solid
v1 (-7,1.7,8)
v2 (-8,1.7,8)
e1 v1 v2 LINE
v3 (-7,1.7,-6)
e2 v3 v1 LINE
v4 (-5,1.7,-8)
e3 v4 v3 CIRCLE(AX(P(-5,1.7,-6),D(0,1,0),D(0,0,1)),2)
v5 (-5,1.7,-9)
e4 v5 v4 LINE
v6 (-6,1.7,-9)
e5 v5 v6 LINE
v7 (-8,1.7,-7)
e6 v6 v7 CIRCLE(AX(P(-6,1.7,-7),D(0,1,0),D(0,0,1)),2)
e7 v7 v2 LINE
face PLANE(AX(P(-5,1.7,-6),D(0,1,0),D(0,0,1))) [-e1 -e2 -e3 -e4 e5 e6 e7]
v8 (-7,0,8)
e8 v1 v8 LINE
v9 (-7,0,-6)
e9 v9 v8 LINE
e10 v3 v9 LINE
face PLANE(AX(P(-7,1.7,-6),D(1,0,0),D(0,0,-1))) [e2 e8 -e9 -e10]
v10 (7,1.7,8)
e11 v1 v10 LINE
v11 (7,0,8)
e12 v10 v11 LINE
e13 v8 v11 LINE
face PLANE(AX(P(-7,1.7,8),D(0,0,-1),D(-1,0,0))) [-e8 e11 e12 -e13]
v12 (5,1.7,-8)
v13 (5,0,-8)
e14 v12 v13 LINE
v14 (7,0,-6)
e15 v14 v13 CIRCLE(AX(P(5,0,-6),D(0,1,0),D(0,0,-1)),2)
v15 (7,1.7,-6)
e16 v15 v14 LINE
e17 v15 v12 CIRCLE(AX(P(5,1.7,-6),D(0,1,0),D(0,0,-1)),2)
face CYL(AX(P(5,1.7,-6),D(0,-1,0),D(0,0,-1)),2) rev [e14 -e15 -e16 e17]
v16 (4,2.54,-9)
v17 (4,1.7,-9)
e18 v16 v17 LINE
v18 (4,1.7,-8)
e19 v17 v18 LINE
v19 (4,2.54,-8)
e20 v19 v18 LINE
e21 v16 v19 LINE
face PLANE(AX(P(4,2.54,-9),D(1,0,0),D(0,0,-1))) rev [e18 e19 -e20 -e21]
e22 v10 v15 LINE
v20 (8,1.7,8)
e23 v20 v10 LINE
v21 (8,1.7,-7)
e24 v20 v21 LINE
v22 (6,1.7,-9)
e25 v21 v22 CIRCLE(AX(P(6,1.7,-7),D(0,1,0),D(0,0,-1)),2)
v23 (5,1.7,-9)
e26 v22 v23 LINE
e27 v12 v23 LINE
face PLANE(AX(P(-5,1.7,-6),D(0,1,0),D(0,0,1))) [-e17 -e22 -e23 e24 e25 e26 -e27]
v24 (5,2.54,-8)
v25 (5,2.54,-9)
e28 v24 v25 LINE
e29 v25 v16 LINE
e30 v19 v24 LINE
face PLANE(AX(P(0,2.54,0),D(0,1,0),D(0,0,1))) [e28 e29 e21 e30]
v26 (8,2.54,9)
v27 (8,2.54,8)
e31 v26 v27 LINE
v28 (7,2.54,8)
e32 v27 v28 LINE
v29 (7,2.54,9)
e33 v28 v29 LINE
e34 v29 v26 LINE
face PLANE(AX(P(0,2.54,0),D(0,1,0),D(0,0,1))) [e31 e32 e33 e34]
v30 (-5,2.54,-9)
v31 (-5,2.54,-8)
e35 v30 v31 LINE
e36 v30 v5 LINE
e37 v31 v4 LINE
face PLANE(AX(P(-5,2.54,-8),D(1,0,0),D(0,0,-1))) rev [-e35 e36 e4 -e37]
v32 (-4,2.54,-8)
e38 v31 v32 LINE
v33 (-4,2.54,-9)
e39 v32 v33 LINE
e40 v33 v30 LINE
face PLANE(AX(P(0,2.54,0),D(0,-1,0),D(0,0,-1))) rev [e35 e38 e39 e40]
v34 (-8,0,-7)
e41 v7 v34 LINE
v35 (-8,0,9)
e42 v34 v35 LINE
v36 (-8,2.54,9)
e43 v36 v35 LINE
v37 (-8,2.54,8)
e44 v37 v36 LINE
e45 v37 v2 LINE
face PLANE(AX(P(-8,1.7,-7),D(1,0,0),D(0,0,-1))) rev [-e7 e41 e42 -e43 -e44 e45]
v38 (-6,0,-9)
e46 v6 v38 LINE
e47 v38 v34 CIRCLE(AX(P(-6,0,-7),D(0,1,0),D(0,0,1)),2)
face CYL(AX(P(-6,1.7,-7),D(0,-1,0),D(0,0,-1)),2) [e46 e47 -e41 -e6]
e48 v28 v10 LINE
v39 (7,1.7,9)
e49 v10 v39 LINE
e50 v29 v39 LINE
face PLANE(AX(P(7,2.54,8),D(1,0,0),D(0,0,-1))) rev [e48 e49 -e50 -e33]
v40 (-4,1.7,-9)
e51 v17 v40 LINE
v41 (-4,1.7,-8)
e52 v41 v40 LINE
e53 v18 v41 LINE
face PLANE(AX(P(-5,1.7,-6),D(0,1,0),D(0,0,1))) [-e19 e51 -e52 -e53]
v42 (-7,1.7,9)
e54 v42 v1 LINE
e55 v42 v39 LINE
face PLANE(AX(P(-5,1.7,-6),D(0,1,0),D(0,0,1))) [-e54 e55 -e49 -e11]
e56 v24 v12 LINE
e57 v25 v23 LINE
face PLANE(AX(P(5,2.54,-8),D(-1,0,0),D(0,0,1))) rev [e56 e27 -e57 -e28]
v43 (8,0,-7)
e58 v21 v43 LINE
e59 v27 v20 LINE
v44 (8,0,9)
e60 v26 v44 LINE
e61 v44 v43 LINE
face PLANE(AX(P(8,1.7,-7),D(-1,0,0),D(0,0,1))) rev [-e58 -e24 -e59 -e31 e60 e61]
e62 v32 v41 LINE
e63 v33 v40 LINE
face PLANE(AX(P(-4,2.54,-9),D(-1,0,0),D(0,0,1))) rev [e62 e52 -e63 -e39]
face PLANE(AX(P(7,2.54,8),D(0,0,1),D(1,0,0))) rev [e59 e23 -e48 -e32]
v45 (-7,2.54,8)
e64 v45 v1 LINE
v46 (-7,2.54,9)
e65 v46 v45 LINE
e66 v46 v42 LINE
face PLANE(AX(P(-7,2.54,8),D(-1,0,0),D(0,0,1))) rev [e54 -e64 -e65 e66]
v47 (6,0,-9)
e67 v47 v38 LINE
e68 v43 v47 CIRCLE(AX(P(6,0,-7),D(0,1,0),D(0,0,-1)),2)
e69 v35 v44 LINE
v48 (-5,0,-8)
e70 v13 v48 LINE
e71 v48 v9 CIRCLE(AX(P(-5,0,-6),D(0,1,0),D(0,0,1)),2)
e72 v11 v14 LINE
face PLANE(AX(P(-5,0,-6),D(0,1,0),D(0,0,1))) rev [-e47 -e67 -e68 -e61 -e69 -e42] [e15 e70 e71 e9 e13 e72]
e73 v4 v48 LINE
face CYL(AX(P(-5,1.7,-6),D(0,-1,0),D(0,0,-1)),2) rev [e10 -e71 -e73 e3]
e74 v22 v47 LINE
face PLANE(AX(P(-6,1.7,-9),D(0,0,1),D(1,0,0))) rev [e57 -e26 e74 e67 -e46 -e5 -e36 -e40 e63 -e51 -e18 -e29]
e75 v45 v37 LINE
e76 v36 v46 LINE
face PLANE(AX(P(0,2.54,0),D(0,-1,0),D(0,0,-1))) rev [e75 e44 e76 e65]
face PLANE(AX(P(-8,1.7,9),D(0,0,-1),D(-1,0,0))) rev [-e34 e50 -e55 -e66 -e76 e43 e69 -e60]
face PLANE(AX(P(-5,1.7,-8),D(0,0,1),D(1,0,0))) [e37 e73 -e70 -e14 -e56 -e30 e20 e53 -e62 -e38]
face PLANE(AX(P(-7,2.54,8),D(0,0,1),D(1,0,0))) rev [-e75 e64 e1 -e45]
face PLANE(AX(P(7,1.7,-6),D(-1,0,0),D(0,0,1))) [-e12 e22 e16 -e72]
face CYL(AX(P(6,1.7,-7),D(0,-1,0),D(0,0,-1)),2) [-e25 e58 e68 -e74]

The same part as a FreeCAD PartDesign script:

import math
import FreeCAD as App
import Part
import Sketcher
Q = App.Units.Quantity

doc = App.newDocument("Part")
params = doc.addObject("Spreadsheet::Sheet", "Params")
for row, (alias, value) in enumerate([
    ("sketch1_radius", "2 mm"),
    ("sketch1_width", "10 mm"),
    ("pad1_length", "1.7 mm"),
    ("sketch2_radius", "2 mm"),
    ("sketch2_width", "12 mm"),
    ("pad2_length", "1.7 mm"),
    ("sketch3_radius", "2 mm"),
    ("sketch3_width", "10 mm"),
    ("pocket1_length", "1.7 mm"),
    ("sketch4_width", "1 mm"),
    ("pad3_length", "0.84 mm"),
], start=1):
    params.set(f"A{row}", alias)
    params.set(f"B{row}", "=" + value)
    params.setAlias(f"B{row}", alias)

body = doc.addObject("PartDesign::Body", "Body")

# Sketch on XZ plane
sketch1 = body.newObject("Sketcher::SketchObject", "Sketch")
sketch1.AttachmentSupport = (doc.getObject("XZ_Plane"), [""])
sketch1.MapMode = "FlatFace"
sketch1.addGeometry([
    Part.LineSegment(App.Vector(5, -8, 0), App.Vector(-5, -8, 0)),  # 0
    Part.ArcOfCircle(Part.Circle(App.Vector(-5, -6, 0), App.Vector(0, 0, 1), 2), math.radians(-180), math.radians(-90)),  # 1
    Part.LineSegment(App.Vector(-7, -6, 0), App.Vector(-7, 8, 0)),  # 2
    Part.LineSegment(App.Vector(-7, 8, 0), App.Vector(7, 8, 0)),  # 3
    Part.LineSegment(App.Vector(7, 8, 0), App.Vector(7, -6, 0)),  # 4
    Part.ArcOfCircle(Part.Circle(App.Vector(5, -6, 0), App.Vector(0, 0, 1), 2), math.radians(-90), math.radians(0)),  # 5
], False)
sketch1.addConstraint([
    Sketcher.Constraint("Tangent", 0, 2, 1, 2),
    Sketcher.Constraint("Tangent", 1, 1, 2, 1),
    Sketcher.Constraint("Coincident", 2, 2, 3, 1),
    Sketcher.Constraint("Coincident", 3, 2, 4, 1),
    Sketcher.Constraint("Tangent", 4, 2, 5, 2),
    Sketcher.Constraint("Tangent", 5, 1, 0, 1),
    Sketcher.Constraint("Horizontal", 0),
    Sketcher.Constraint("Vertical", 2),
    Sketcher.Constraint("Horizontal", 3),
    Sketcher.Constraint("Vertical", 4),
    Sketcher.Constraint("Equal", 1, 5),
    Sketcher.Constraint("Equal", 3, 2),
    Sketcher.Constraint("Radius", 1, Q("2 mm")),
    Sketcher.Constraint("DistanceX", 0, 2, 0, 1, Q("10 mm")),
    Sketcher.Constraint("DistanceX", 1, 3, -1, 1, Q("5 mm")),
    Sketcher.Constraint("DistanceY", 1, 3, -1, 1, Q("6 mm")),
])
sketch1.setExpression("Constraints[12]", "Params.sketch1_radius")
sketch1.setExpression("Constraints[13]", "Params.sketch1_width")
pad1 = body.newObject("PartDesign::Pad", "Pad")
pad1.Profile = sketch1
pad1.setExpression("Length", "Params.pad1_length")
pad1.Reversed = True

# Sketch on XZ plane
sketch2 = body.newObject("Sketcher::SketchObject", "Sketch001")
sketch2.AttachmentSupport = (doc.getObject("XZ_Plane"), [""])
sketch2.MapMode = "FlatFace"
sketch2.addGeometry([
    Part.LineSegment(App.Vector(6, -9, 0), App.Vector(-6, -9, 0)),  # 0
    Part.ArcOfCircle(Part.Circle(App.Vector(-6, -7, 0), App.Vector(0, 0, 1), 2), math.radians(-180), math.radians(-90)),  # 1
    Part.LineSegment(App.Vector(-8, -7, 0), App.Vector(-8, 9, 0)),  # 2
    Part.LineSegment(App.Vector(-8, 9, 0), App.Vector(8, 9, 0)),  # 3
    Part.LineSegment(App.Vector(8, 9, 0), App.Vector(8, -7, 0)),  # 4
    Part.ArcOfCircle(Part.Circle(App.Vector(6, -7, 0), App.Vector(0, 0, 1), 2), math.radians(-90), math.radians(0)),  # 5
], False)
sketch2.addConstraint([
    Sketcher.Constraint("Tangent", 0, 2, 1, 2),
    Sketcher.Constraint("Tangent", 1, 1, 2, 1),
    Sketcher.Constraint("Coincident", 2, 2, 3, 1),
    Sketcher.Constraint("Coincident", 3, 2, 4, 1),
    Sketcher.Constraint("Tangent", 4, 2, 5, 2),
    Sketcher.Constraint("Tangent", 5, 1, 0, 1),
    Sketcher.Constraint("Horizontal", 0),
    Sketcher.Constraint("Vertical", 2),
    Sketcher.Constraint("Horizontal", 3),
    Sketcher.Constraint("Vertical", 4),
    Sketcher.Constraint("Equal", 1, 5),
    Sketcher.Constraint("Equal", 3, 2),
    Sketcher.Constraint("Radius", 1, Q("2 mm")),
    Sketcher.Constraint("DistanceX", 0, 2, 0, 1, Q("12 mm")),
    Sketcher.Constraint("DistanceX", 1, 3, -1, 1, Q("6 mm")),
    Sketcher.Constraint("DistanceY", 1, 3, -1, 1, Q("7 mm")),
])
sketch2.setExpression("Constraints[12]", "Params.sketch2_radius")
sketch2.setExpression("Constraints[13]", "Params.sketch2_width")
pad2 = body.newObject("PartDesign::Pad", "Pad001")
pad2.Profile = sketch2
pad2.setExpression("Length", "Params.pad2_length")
pad2.Reversed = True

# Sketch on XZ plane
sketch3 = body.newObject("Sketcher::SketchObject", "Sketch002")
sketch3.AttachmentSupport = (doc.getObject("XZ_Plane"), [""])
sketch3.MapMode = "FlatFace"
sketch3.addGeometry([
    Part.LineSegment(App.Vector(5, -8, 0), App.Vector(-5, -8, 0)),  # 0
    Part.ArcOfCircle(Part.Circle(App.Vector(-5, -6, 0), App.Vector(0, 0, 1), 2), math.radians(-180), math.radians(-90)),  # 1
    Part.LineSegment(App.Vector(-7, -6, 0), App.Vector(-7, 8, 0)),  # 2
    Part.LineSegment(App.Vector(-7, 8, 0), App.Vector(7, 8, 0)),  # 3
    Part.LineSegment(App.Vector(7, 8, 0), App.Vector(7, -6, 0)),  # 4
    Part.ArcOfCircle(Part.Circle(App.Vector(5, -6, 0), App.Vector(0, 0, 1), 2), math.radians(-90), math.radians(0)),  # 5
], False)
sketch3.addConstraint([
    Sketcher.Constraint("Tangent", 0, 2, 1, 2),
    Sketcher.Constraint("Tangent", 1, 1, 2, 1),
    Sketcher.Constraint("Coincident", 2, 2, 3, 1),
    Sketcher.Constraint("Coincident", 3, 2, 4, 1),
    Sketcher.Constraint("Tangent", 4, 2, 5, 2),
    Sketcher.Constraint("Tangent", 5, 1, 0, 1),
    Sketcher.Constraint("Horizontal", 0),
    Sketcher.Constraint("Vertical", 2),
    Sketcher.Constraint("Horizontal", 3),
    Sketcher.Constraint("Vertical", 4),
    Sketcher.Constraint("Equal", 1, 5),
    Sketcher.Constraint("Equal", 3, 2),
    Sketcher.Constraint("Radius", 1, Q("2 mm")),
    Sketcher.Constraint("DistanceX", 0, 2, 0, 1, Q("10 mm")),
    Sketcher.Constraint("DistanceX", 1, 3, -1, 1, Q("5 mm")),
    Sketcher.Constraint("DistanceY", 1, 3, -1, 1, Q("6 mm")),
])
sketch3.setExpression("Constraints[12]", "Params.sketch3_radius")
sketch3.setExpression("Constraints[13]", "Params.sketch3_width")
pocket1 = body.newObject("PartDesign::Pocket", "Pocket")
pocket1.Profile = sketch3
pocket1.setExpression("Length", "Params.pocket1_length")

# Sketch on XZ plane
sketch4 = body.newObject("Sketcher::SketchObject", "Sketch003")
sketch4.AttachmentSupport = (doc.getObject("XZ_Plane"), [""])
sketch4.MapMode = "FlatFace"
sketch4.AttachmentOffset = App.Placement(App.Vector(0, 0, -1.7), App.Rotation())
sketch4.addGeometry([
    Part.LineSegment(App.Vector(-5, -9, 0), App.Vector(-5, -8, 0)),  # 0
    Part.LineSegment(App.Vector(-5, -8, 0), App.Vector(-4, -8, 0)),  # 1
    Part.LineSegment(App.Vector(-4, -8, 0), App.Vector(-4, -9, 0)),  # 2
    Part.LineSegment(App.Vector(-4, -9, 0), App.Vector(-5, -9, 0)),  # 3
    Part.LineSegment(App.Vector(-8, 8, 0), App.Vector(-8, 9, 0)),  # 4
    Part.LineSegment(App.Vector(-8, 9, 0), App.Vector(-7, 9, 0)),  # 5
    Part.LineSegment(App.Vector(-7, 9, 0), App.Vector(-7, 8, 0)),  # 6
    Part.LineSegment(App.Vector(-7, 8, 0), App.Vector(-8, 8, 0)),  # 7
    Part.LineSegment(App.Vector(7, 8, 0), App.Vector(7, 9, 0)),  # 8
    Part.LineSegment(App.Vector(7, 9, 0), App.Vector(8, 9, 0)),  # 9
    Part.LineSegment(App.Vector(8, 9, 0), App.Vector(8, 8, 0)),  # 10
    Part.LineSegment(App.Vector(8, 8, 0), App.Vector(7, 8, 0)),  # 11
    Part.LineSegment(App.Vector(4, -9, 0), App.Vector(4, -8, 0)),  # 12
    Part.LineSegment(App.Vector(4, -8, 0), App.Vector(5, -8, 0)),  # 13
    Part.LineSegment(App.Vector(5, -8, 0), App.Vector(5, -9, 0)),  # 14
    Part.LineSegment(App.Vector(5, -9, 0), App.Vector(4, -9, 0)),  # 15
], False)
sketch4.addConstraint([
    Sketcher.Constraint("Coincident", 0, 2, 1, 1),
    Sketcher.Constraint("Coincident", 1, 2, 2, 1),
    Sketcher.Constraint("Coincident", 2, 2, 3, 1),
    Sketcher.Constraint("Coincident", 3, 2, 0, 1),
    Sketcher.Constraint("Coincident", 4, 2, 5, 1),
    Sketcher.Constraint("Coincident", 5, 2, 6, 1),
    Sketcher.Constraint("Coincident", 6, 2, 7, 1),
    Sketcher.Constraint("Coincident", 7, 2, 4, 1),
    Sketcher.Constraint("Coincident", 8, 2, 9, 1),
    Sketcher.Constraint("Coincident", 9, 2, 10, 1),
    Sketcher.Constraint("Coincident", 10, 2, 11, 1),
    Sketcher.Constraint("Coincident", 11, 2, 8, 1),
    Sketcher.Constraint("Coincident", 12, 2, 13, 1),
    Sketcher.Constraint("Coincident", 13, 2, 14, 1),
    Sketcher.Constraint("Coincident", 14, 2, 15, 1),
    Sketcher.Constraint("Coincident", 15, 2, 12, 1),
    Sketcher.Constraint("Vertical", 0),
    Sketcher.Constraint("Horizontal", 1),
    Sketcher.Constraint("Vertical", 2),
    Sketcher.Constraint("Horizontal", 3),
    Sketcher.Constraint("Vertical", 4),
    Sketcher.Constraint("Horizontal", 5),
    Sketcher.Constraint("Vertical", 6),
    Sketcher.Constraint("Horizontal", 7),
    Sketcher.Constraint("Vertical", 8),
    Sketcher.Constraint("Horizontal", 9),
    Sketcher.Constraint("Vertical", 10),
    Sketcher.Constraint("Horizontal", 11),
    Sketcher.Constraint("Vertical", 12),
    Sketcher.Constraint("Horizontal", 13),
    Sketcher.Constraint("Vertical", 14),
    Sketcher.Constraint("Horizontal", 15),
    Sketcher.Constraint("Symmetric", 5, 2, 8, 2, -2),
    Sketcher.Constraint("Symmetric", 7, 2, 10, 2, -2),
    Sketcher.Constraint("Symmetric", 1, 2, 12, 2, -2),
    Sketcher.Constraint("Symmetric", 3, 2, 14, 2, -2),
    Sketcher.Constraint("Equal", 3, 5),
    Sketcher.Constraint("Equal", 15, 0),
    Sketcher.Constraint("Equal", 2, 4),
    Sketcher.Constraint("DistanceX", 1, 1, 1, 2, Q("1 mm")),
    Sketcher.Constraint("DistanceX", 0, 2, -1, 1, Q("5 mm")),
    Sketcher.Constraint("DistanceY", 0, 2, -1, 1, Q("8 mm")),
    Sketcher.Constraint("DistanceX", 4, 2, -1, 1, Q("8 mm")),
    Sketcher.Constraint("DistanceY", -1, 1, 4, 2, Q("9 mm")),
])
sketch4.setExpression("Constraints[39]", "Params.sketch4_width")
pad3 = body.newObject("PartDesign::Pad", "Pad002")
pad3.Profile = sketch4
pad3.setExpression("Length", "Params.pad3_length")
pad3.Reversed = True

doc.recompute()
